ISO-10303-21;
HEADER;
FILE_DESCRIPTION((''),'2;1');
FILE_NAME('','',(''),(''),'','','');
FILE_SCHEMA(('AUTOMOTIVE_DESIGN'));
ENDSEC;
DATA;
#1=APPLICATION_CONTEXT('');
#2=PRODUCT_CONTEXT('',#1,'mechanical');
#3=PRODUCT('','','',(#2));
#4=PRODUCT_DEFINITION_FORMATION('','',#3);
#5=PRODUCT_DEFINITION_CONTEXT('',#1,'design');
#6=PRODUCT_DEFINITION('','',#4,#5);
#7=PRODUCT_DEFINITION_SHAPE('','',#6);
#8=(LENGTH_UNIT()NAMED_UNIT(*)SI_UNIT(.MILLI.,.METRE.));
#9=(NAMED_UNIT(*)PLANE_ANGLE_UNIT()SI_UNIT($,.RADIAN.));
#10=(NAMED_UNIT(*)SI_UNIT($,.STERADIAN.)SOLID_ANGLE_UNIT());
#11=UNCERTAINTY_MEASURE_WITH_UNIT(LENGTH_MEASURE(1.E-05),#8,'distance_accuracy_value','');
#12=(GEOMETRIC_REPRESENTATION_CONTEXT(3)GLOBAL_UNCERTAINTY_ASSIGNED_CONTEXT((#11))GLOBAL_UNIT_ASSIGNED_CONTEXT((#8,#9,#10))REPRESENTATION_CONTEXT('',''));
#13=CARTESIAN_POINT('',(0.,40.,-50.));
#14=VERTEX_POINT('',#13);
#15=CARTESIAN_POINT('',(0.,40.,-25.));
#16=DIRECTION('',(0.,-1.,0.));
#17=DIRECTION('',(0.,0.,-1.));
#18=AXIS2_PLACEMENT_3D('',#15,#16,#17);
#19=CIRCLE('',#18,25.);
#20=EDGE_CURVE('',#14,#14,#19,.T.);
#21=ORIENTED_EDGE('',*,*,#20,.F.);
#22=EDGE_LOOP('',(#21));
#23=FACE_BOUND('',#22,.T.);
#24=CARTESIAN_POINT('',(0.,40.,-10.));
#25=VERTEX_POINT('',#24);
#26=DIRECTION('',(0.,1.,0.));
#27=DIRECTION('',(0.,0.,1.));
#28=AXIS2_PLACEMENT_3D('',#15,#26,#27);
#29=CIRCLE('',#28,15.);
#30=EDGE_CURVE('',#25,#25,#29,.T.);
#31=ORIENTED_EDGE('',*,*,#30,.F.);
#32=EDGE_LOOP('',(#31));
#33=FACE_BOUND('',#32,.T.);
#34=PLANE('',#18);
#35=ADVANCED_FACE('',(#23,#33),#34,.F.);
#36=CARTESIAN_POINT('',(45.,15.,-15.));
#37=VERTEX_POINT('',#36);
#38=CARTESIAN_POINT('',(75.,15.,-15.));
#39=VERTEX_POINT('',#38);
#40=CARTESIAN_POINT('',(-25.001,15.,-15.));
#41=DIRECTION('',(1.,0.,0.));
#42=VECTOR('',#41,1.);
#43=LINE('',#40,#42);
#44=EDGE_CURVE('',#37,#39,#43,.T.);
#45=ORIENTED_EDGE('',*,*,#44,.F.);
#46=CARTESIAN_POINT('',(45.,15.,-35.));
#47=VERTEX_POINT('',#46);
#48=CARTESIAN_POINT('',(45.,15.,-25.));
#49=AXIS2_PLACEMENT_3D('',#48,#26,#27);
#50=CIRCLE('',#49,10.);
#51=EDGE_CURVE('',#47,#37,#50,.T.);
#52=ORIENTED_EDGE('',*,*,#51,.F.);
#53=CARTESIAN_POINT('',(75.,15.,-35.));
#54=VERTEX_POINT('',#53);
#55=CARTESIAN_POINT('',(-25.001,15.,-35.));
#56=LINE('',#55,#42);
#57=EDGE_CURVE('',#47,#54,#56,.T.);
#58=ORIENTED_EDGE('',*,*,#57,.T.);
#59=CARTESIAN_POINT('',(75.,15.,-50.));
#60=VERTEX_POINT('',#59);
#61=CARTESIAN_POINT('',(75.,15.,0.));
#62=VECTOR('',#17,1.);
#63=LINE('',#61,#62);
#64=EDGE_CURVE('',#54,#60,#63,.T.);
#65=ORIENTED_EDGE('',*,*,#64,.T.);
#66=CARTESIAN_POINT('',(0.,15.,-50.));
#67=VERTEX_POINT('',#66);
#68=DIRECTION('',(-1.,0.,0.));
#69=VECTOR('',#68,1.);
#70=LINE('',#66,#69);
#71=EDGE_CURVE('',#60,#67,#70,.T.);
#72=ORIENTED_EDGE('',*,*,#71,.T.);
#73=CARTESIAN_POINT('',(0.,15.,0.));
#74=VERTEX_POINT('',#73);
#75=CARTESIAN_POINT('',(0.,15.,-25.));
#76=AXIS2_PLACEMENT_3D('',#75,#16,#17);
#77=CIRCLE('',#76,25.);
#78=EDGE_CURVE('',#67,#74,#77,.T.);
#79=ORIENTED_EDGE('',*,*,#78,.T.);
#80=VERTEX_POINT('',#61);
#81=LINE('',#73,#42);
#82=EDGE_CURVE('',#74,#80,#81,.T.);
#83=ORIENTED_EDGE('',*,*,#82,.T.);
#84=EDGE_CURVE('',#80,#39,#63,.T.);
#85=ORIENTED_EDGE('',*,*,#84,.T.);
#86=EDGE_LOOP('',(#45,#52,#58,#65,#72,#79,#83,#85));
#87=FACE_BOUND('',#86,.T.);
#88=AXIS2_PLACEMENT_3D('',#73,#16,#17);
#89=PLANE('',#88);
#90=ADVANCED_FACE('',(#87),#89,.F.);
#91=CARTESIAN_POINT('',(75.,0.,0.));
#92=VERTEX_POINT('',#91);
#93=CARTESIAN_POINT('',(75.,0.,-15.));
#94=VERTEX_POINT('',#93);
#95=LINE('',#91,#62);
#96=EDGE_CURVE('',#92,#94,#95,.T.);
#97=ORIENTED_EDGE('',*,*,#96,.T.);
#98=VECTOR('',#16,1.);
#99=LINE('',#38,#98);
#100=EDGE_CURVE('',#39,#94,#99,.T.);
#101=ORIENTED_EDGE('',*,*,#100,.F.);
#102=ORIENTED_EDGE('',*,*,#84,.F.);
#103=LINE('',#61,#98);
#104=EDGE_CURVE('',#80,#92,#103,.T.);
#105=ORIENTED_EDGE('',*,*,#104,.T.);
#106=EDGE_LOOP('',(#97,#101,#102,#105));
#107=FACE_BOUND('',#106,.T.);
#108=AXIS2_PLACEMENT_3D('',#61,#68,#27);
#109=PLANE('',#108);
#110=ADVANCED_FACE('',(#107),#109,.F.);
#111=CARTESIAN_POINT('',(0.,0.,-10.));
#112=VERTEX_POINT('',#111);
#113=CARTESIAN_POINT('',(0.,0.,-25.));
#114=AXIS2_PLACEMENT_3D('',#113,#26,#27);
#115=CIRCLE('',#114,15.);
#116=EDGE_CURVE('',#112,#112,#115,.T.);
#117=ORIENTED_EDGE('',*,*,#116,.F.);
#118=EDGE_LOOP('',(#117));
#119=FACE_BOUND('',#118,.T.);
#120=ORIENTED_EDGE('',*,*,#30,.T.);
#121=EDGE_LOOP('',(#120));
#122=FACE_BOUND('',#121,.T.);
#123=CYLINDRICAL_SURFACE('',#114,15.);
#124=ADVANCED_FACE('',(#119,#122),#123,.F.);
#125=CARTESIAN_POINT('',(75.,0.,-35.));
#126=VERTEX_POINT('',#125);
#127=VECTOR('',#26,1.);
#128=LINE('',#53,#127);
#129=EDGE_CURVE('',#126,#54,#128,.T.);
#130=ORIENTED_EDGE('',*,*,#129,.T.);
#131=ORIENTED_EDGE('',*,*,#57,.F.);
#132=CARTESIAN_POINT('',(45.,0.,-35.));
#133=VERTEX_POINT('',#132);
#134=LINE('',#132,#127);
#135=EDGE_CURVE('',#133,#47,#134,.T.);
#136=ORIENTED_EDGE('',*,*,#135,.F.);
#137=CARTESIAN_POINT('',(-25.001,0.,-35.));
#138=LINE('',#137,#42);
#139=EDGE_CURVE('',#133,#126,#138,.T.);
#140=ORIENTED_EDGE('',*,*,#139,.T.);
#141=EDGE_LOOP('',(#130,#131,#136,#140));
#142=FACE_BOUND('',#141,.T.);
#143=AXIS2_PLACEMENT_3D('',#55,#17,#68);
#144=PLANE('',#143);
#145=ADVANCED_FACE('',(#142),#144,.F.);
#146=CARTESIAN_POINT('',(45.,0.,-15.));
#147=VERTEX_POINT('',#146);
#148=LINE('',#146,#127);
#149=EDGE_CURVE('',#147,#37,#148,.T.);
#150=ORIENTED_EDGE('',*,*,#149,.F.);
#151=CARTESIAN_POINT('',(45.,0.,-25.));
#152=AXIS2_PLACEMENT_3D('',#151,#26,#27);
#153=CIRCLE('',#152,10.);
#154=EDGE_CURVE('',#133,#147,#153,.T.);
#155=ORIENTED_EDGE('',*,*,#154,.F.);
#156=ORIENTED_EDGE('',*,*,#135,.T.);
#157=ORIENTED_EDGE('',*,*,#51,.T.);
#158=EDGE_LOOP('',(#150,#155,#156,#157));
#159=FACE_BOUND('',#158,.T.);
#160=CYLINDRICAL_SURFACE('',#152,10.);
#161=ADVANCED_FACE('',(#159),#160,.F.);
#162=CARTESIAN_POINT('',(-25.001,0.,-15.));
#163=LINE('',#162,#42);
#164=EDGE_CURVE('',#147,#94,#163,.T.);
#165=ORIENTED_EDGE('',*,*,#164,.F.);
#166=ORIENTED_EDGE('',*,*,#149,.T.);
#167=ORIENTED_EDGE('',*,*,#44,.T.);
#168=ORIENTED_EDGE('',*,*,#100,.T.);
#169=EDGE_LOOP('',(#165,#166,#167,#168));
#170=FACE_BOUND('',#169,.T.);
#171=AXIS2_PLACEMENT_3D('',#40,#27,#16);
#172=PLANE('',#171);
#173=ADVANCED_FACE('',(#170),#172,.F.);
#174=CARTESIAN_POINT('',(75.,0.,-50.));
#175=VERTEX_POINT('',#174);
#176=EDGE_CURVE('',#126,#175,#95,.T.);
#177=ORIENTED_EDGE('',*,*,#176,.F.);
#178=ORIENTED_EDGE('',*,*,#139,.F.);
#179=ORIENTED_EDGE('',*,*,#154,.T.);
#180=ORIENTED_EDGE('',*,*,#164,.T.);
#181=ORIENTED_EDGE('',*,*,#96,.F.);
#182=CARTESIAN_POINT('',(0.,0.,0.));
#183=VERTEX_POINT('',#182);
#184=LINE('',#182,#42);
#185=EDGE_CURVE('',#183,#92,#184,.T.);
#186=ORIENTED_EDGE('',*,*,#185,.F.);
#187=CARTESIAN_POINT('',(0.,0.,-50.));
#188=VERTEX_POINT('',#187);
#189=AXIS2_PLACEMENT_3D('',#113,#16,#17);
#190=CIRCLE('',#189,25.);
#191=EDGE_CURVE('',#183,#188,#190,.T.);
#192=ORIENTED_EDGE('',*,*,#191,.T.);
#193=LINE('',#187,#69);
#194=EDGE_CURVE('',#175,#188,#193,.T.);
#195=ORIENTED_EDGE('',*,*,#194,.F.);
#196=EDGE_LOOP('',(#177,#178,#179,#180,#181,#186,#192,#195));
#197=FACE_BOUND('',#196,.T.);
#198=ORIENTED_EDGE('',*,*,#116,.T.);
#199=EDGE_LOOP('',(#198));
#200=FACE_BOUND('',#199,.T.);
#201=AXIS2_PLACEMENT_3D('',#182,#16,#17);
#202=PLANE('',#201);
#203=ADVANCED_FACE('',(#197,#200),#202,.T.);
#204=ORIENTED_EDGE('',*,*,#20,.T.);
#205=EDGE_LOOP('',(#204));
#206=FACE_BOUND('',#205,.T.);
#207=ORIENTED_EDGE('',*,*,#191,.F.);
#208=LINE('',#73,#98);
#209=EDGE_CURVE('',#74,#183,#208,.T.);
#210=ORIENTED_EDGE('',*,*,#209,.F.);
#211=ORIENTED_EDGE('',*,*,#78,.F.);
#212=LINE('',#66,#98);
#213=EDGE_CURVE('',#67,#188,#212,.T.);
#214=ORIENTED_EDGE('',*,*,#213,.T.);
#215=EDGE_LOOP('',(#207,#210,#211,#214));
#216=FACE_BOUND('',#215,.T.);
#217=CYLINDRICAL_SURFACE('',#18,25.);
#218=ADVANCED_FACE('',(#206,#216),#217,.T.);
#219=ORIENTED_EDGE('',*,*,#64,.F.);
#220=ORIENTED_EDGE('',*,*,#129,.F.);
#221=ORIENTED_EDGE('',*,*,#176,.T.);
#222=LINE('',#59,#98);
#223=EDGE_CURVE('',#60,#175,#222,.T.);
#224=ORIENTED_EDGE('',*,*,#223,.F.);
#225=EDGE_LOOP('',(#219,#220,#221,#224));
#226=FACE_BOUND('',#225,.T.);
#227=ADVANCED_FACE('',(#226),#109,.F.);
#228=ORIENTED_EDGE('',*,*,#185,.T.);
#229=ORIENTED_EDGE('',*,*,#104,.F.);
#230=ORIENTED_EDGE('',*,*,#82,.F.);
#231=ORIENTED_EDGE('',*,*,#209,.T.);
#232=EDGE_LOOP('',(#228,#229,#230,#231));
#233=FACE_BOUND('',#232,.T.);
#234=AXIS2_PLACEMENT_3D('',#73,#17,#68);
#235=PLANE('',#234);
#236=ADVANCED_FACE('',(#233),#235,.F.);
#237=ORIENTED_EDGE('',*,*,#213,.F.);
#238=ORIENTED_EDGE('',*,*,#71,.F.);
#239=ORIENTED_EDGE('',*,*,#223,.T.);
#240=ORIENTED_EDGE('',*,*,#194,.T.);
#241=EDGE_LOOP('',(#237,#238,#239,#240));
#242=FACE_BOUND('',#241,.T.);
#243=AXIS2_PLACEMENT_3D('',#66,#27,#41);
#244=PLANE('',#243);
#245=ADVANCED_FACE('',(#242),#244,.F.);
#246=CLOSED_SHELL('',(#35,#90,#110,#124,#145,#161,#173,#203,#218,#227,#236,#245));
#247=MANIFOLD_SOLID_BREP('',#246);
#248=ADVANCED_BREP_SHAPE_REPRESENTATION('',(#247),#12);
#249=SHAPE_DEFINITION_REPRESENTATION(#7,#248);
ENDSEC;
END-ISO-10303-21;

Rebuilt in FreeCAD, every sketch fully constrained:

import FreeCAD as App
import Part
import Sketcher

V = App.Vector


def add_polygon(sketch, points):
    """Adds a closed chain of lines whose ends are joined by coincident constraints."""
    first, n = sketch.GeometryCount, len(points)
    for a, b in zip(points, points[1:] + points[:1]):
        sketch.addGeometry(Part.LineSegment(App.Vector(*a, 0), App.Vector(*b, 0)), False)
    for i in range(n):
        sketch.addConstraint(Sketcher.Constraint("Coincident", first + i, 2, first + (i + 1) % n, 1))

doc = App.newDocument("Part")
params = doc.addObject("Spreadsheet::Sheet", "Params")
for row, (alias, value) in enumerate([
    ("sketch1_width", "75 mm"),
    ("sketch1_height", "50 mm"),
    ("pad1_length", "15 mm"),
    ("sketch2_diameter", "50 mm"),
    ("pad2_length", "40 mm"),
    ("sketch3_diameter", "30 mm"),
    ("sketch4_diameter", "20 mm"),
    ("sketch5_width", "15 mm"),
    ("sketch5_height", "20 mm"),
    ("pocket3_length", "30 mm"),
], start=1):
    params.set(f"A{row}", alias)
    params.set(f"B{row}", "=" + value)
    params.setAlias(f"B{row}", alias)

body = doc.addObject("PartDesign::Body", "Body")

# Sketch on XZ plane
sketch1 = body.newObject("Sketcher::SketchObject", "Sketch")
sketch1.AttachmentSupport = (doc.getObject("XZ_Plane"), [""])
sketch1.MapMode = "FlatFace"
add_polygon(sketch1, [(0, -50), (0, 0), (75, 0), (75, -50)])  # lines 0-3
sketch1.addConstraint([
    Sketcher.Constraint("Vertical", 0),
    Sketcher.Constraint("Horizontal", 1),
    Sketcher.Constraint("Vertical", 2),
    Sketcher.Constraint("Horizontal", 3),
    Sketcher.Constraint("Coincident", 0, 2, -1, 1),
    Sketcher.Constraint("DistanceX", 1, 1, 1, 2, 75.0),
    Sketcher.Constraint("DistanceY", 0, 1, 0, 2, 50.0),
])
sketch1.setExpression("Constraints[9]", "Params.sketch1_width")
sketch1.setExpression("Constraints[10]", "Params.sketch1_height")
pad1 = body.newObject("PartDesign::Pad", "Pad")
pad1.Profile = sketch1
pad1.setExpression("Length", "Params.pad1_length")
pad1.Reversed = True

# Sketch on XZ plane
sketch2 = body.newObject("Sketcher::SketchObject", "Sketch001")
sketch2.AttachmentSupport = (doc.getObject("XZ_Plane"), [""])
sketch2.MapMode = "FlatFace"
sketch2.addGeometry(Part.Circle(V(0, -25, 0), V(0, 0, 1), 25), False)
sketch2.addConstraint([
    Sketcher.Constraint("PointOnObject", 0, 3, -2),
    Sketcher.Constraint("Diameter", 0, 50.0),
    Sketcher.Constraint("DistanceY", 0, 3, -1, 1, 25.0),
])
sketch2.setExpression("Constraints[1]", "Params.sketch2_diameter")
pad2 = body.newObject("PartDesign::Pad", "Pad001")
pad2.Profile = sketch2
pad2.setExpression("Length", "Params.pad2_length")
pad2.Reversed = True

# Sketch on XZ plane
sketch3 = body.newObject("Sketcher::SketchObject", "Sketch002")
sketch3.AttachmentSupport = (doc.getObject("XZ_Plane"), [""])
sketch3.MapMode = "FlatFace"
sketch3.AttachmentOffset = App.Placement(V(0, 0, -40), App.Rotation())
sketch3.addGeometry(Part.Circle(V(0, -25, 0), V(0, 0, 1), 15), False)
sketch3.addConstraint([
    Sketcher.Constraint("PointOnObject", 0, 3, -2),
    Sketcher.Constraint("Diameter", 0, 30.0),
    Sketcher.Constraint("DistanceY", 0, 3, -1, 1, 25.0),
])
sketch3.setExpression("Constraints[1]", "Params.sketch3_diameter")
pocket1 = body.newObject("PartDesign::Pocket", "Pocket")
pocket1.Profile = sketch3
pocket1.Type = "ThroughAll"
pocket1.Reversed = True

# Sketch on XZ plane
sketch4 = body.newObject("Sketcher::SketchObject", "Sketch003")
sketch4.AttachmentSupport = (doc.getObject("XZ_Plane"), [""])
sketch4.MapMode = "FlatFace"
sketch4.AttachmentOffset = App.Placement(V(0, 0, -15), App.Rotation())
sketch4.addGeometry(Part.Circle(V(45, -25, 0), V(0, 0, 1), 10), False)
sketch4.addConstraint([
    Sketcher.Constraint("Diameter", 0, 20.0),
    Sketcher.Constraint("DistanceX", -1, 1, 0, 3, 45.0),
    Sketcher.Constraint("DistanceY", 0, 3, -1, 1, 25.0),
])
sketch4.setExpression("Constraints[0]", "Params.sketch4_diameter")
pocket2 = body.newObject("PartDesign::Pocket", "Pocket001")
pocket2.Profile = sketch4
pocket2.Type = "ThroughAll"
pocket2.Reversed = True

# Sketch on YZ plane
sketch5 = body.newObject("Sketcher::SketchObject", "Sketch004")
sketch5.AttachmentSupport = (doc.getObject("YZ_Plane"), [""])
sketch5.MapMode = "FlatFace"
sketch5.AttachmentOffset = App.Placement(V(0, 0, 75), App.Rotation())
add_polygon(sketch5, [(15, -15), (0, -15), (0, -35), (15, -35)])  # lines 0-3
sketch5.addConstraint([
    Sketcher.Constraint("Horizontal", 0),
    Sketcher.Constraint("Vertical", 1),
    Sketcher.Constraint("Horizontal", 2),
    Sketcher.Constraint("Vertical", 3),
    Sketcher.Constraint("PointOnObject", 0, 2, -2),
    Sketcher.Constraint("DistanceX", 0, 2, 0, 1, 15.0),
    Sketcher.Constraint("DistanceY", 1, 2, 1, 1, 20.0),
    Sketcher.Constraint("DistanceY", 0, 2, -1, 1, 15.0),
])
sketch5.setExpression("Constraints[9]", "Params.sketch5_width")
sketch5.setExpression("Constraints[10]", "Params.sketch5_height")
pocket3 = body.newObject("PartDesign::Pocket", "Pocket002")
pocket3.Profile = sketch5
pocket3.setExpression("Length", "Params.pocket3_length")

doc.recompute()
